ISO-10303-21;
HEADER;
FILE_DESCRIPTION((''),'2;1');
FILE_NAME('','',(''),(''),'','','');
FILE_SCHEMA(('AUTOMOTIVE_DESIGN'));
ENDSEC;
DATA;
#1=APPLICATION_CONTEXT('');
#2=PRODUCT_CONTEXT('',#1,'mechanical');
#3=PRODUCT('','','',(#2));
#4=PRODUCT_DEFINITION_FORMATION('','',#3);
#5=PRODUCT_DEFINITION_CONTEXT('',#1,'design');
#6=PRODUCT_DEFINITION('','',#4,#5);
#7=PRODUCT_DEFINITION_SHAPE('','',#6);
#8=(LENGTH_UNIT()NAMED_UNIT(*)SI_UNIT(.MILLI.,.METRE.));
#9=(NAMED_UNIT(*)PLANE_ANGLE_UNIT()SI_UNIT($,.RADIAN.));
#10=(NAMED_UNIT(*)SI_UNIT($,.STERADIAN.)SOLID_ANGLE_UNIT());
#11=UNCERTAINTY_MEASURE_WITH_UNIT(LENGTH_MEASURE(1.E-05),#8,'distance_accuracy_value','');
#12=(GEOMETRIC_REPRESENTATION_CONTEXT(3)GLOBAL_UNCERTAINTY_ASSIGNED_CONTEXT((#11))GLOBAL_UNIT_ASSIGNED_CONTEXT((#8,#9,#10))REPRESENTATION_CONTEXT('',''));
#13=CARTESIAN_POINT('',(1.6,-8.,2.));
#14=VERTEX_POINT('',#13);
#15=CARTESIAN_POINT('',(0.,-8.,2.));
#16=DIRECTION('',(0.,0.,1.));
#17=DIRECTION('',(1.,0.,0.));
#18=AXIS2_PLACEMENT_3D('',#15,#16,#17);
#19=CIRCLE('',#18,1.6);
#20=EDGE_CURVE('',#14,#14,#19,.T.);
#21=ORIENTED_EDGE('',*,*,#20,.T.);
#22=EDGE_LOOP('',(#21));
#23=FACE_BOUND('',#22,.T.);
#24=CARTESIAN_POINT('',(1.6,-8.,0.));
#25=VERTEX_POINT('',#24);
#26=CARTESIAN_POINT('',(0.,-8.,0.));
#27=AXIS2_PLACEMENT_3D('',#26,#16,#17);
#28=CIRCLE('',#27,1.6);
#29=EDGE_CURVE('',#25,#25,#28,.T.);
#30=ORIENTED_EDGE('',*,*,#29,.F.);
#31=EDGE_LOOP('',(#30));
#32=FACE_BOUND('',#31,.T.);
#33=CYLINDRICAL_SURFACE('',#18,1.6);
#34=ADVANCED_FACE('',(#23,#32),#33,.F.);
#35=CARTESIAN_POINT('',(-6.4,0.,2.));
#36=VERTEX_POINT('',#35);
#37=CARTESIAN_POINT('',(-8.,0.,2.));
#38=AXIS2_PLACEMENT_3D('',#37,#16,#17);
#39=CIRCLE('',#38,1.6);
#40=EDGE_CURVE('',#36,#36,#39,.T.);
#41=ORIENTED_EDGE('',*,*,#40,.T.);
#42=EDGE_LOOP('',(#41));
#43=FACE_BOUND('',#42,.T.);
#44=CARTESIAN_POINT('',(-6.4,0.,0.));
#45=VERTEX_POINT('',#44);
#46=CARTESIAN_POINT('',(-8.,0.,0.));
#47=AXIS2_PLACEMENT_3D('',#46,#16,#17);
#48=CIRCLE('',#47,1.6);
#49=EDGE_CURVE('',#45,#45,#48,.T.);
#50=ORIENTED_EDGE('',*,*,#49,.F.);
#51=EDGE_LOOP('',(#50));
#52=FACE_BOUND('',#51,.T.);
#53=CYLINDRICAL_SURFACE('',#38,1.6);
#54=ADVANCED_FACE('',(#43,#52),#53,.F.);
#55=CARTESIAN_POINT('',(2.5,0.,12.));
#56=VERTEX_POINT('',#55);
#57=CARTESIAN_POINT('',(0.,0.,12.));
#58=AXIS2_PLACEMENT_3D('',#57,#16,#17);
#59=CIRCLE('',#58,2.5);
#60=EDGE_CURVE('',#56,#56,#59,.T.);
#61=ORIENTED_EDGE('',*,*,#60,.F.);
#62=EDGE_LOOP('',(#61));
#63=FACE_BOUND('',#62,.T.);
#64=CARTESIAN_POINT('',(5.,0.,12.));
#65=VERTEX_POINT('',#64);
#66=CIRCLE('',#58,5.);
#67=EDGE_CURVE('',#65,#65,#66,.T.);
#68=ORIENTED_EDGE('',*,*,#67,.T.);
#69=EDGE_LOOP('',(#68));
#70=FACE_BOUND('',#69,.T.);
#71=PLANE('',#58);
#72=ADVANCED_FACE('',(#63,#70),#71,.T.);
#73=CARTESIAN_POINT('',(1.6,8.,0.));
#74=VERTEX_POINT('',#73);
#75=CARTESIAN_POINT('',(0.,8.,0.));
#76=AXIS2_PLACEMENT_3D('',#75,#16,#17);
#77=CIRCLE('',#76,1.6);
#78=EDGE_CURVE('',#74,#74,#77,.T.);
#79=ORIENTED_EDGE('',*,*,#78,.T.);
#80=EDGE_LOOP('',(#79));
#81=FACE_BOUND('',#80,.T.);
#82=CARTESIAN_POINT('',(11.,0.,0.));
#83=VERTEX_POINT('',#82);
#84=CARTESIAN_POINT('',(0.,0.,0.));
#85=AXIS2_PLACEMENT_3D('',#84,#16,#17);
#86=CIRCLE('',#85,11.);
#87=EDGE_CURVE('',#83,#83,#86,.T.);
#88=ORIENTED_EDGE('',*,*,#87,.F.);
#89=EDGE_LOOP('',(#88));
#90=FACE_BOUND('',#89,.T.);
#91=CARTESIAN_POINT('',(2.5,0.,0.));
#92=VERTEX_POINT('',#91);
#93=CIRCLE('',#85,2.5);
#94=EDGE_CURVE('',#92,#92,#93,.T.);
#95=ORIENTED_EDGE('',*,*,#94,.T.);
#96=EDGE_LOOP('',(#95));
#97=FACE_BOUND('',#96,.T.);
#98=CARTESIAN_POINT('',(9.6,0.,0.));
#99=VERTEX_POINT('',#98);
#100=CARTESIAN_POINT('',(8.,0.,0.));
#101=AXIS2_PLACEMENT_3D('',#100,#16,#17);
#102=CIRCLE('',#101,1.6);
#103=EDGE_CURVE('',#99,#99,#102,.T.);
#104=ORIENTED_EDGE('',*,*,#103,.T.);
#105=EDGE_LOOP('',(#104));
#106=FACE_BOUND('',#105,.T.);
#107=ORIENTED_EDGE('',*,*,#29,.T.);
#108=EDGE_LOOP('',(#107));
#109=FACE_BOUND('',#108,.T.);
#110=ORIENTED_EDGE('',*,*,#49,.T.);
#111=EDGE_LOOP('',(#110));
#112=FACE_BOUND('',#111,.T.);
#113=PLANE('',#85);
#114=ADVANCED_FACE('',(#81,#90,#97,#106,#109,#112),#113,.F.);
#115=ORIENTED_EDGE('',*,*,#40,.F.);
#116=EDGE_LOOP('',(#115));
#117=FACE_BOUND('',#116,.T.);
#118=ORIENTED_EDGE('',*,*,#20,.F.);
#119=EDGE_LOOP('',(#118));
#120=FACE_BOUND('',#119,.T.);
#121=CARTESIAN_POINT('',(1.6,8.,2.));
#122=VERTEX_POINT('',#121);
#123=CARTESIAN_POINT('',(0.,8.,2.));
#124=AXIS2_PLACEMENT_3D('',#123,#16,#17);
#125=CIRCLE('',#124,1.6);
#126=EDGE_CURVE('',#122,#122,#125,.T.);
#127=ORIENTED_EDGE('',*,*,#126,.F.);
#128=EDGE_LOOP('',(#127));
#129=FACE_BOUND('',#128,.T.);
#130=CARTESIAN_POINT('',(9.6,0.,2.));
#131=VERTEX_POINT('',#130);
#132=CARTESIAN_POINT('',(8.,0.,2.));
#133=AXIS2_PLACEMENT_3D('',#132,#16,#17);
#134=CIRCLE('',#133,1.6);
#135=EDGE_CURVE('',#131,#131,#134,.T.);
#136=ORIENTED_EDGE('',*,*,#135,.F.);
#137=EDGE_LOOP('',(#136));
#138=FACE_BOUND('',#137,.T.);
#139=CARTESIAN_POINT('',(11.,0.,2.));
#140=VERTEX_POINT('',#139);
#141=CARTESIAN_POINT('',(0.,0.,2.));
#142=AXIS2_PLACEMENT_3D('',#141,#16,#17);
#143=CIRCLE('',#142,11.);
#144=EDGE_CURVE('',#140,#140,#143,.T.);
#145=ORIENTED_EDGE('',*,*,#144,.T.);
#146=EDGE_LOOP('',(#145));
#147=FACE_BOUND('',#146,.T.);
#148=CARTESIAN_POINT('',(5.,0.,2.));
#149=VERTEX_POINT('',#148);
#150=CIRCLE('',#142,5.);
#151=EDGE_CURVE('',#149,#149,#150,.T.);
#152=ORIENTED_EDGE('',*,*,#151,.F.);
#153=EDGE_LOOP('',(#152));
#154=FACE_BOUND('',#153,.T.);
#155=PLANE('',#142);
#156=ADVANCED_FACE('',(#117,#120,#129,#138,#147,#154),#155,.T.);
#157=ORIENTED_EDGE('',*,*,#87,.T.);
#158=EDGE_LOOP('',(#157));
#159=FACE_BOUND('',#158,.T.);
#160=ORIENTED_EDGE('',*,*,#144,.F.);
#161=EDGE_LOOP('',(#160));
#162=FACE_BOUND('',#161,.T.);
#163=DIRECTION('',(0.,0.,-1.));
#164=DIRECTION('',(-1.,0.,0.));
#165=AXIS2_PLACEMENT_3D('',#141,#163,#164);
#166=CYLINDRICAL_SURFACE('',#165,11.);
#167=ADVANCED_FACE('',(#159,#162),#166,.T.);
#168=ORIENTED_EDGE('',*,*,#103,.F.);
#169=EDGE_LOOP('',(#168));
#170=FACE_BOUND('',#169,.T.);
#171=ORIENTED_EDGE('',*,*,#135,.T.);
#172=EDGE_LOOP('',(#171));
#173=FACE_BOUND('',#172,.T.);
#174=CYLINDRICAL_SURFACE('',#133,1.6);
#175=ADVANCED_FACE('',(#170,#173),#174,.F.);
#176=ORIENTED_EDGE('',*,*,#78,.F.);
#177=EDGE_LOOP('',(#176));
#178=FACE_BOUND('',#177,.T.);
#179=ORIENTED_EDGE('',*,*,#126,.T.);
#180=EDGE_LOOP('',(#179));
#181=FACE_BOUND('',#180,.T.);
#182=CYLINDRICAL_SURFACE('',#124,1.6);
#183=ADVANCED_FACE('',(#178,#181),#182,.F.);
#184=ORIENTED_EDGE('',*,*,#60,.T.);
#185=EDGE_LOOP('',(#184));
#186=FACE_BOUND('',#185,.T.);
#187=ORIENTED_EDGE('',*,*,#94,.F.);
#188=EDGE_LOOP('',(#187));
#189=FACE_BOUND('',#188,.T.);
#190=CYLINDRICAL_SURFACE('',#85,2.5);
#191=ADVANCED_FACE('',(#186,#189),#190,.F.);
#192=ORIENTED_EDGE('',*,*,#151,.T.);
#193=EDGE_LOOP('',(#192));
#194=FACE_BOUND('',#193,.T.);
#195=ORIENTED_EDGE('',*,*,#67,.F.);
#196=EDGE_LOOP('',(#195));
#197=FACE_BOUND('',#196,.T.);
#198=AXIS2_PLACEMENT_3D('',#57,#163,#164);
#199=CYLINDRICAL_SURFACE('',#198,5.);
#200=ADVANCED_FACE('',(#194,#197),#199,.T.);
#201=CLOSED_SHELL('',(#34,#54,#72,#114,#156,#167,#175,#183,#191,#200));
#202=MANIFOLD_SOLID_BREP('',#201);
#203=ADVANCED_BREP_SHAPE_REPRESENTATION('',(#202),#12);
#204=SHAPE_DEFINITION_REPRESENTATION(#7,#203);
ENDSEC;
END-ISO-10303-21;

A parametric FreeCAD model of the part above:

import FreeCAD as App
import Part
import Sketcher

doc = App.newDocument("Part")
params = doc.addObject("Spreadsheet::Sheet", "Params")
for row, (alias, value) in enumerate([
    ("sketch1_diameter", "22 mm"),
    ("pad1_length", "2 mm"),
    ("sketch2_diameter", "10 mm"),
    ("pad2_length", "10 mm"),
    ("sketch3_diameter", "5 mm"),
    ("sketch4_diameter", "3.2 mm"),
    ("hole_diameter", "3.2 mm"),
    ("hole_depth", "10 mm"),
], start=1):
    params.set(f"A{row}", alias)
    params.set(f"B{row}", "=" + value)
    params.setAlias(f"B{row}", alias)

body = doc.addObject("PartDesign::Body", "Body")

sketch1 = body.newObject("Sketcher::SketchObject", "Sketch")
sketch1.AttachmentSupport = (doc.getObject("XY_Plane"), [""])
sketch1.MapMode = "FlatFace"
sketch1.addGeometry(Part.Circle(App.Vector(0, 0, 0), App.Vector(0, 0, 1), 11), False)
sketch1.addConstraint([
    Sketcher.Constraint("Coincident", 0, 3, -1, 1),
    Sketcher.Constraint("Diameter", 0, 22.0),
])
sketch1.setExpression("Constraints[1]", "Params.sketch1_diameter")
pad1 = body.newObject("PartDesign::Pad", "Pad")
pad1.Profile = sketch1
pad1.setExpression("Length", "Params.pad1_length")

sketch2 = body.newObject("Sketcher::SketchObject", "Sketch001")
sketch2.AttachmentSupport = (doc.getObject("XY_Plane"), [""])
sketch2.MapMode = "FlatFace"
sketch2.AttachmentOffset = App.Placement(App.Vector(0, 0, 2), App.Rotation())
sketch2.addGeometry(Part.Circle(App.Vector(0, 0, 0), App.Vector(0, 0, 1), 5), False)
sketch2.addConstraint([
    Sketcher.Constraint("Coincident", 0, 3, -1, 1),
    Sketcher.Constraint("Diameter", 0, 10.0),
])
sketch2.setExpression("Constraints[1]", "Params.sketch2_diameter")
pad2 = body.newObject("PartDesign::Pad", "Pad001")
pad2.Profile = sketch2
pad2.setExpression("Length", "Params.pad2_length")

sketch3 = body.newObject("Sketcher::SketchObject", "Sketch002")
sketch3.AttachmentSupport = (doc.getObject("XY_Plane"), [""])
sketch3.MapMode = "FlatFace"
sketch3.AttachmentOffset = App.Placement(App.Vector(0, 0, 12), App.Rotation())
sketch3.addGeometry(Part.Circle(App.Vector(0, 0, 0), App.Vector(0, 0, 1), 2.5), False)
sketch3.addConstraint([
    Sketcher.Constraint("Coincident", 0, 3, -1, 1),
    Sketcher.Constraint("Diameter", 0, 5.0),
])
sketch3.setExpression("Constraints[1]", "Params.sketch3_diameter")
pocket1 = body.newObject("PartDesign::Pocket", "Pocket")
pocket1.Profile = sketch3
pocket1.Type = "ThroughAll"

sketch4 = body.newObject("Sketcher::SketchObject", "Sketch003")
sketch4.AttachmentSupport = (doc.getObject("XY_Plane"), [""])
sketch4.MapMode = "FlatFace"
sketch4.AttachmentOffset = App.Placement(App.Vector(0, 0, 2), App.Rotation())
sketch4.addGeometry([
    Part.Circle(App.Vector(8, 0, 0), App.Vector(0, 0, 1), 1.6),
    Part.Circle(App.Vector(-8, 0, 0), App.Vector(0, 0, 1), 1.6),
    Part.Circle(App.Vector(0, -8, 0), App.Vector(0, 0, 1), 1.6),
    Part.Circle(App.Vector(0, 8, 0), App.Vector(0, 0, 1), 1.6),
], False)
sketch4.addConstraint([
    Sketcher.Constraint("Equal", 0, 1),
    Sketcher.Constraint("Equal", 1, 2),
    Sketcher.Constraint("Equal", 2, 3),
    Sketcher.Constraint("Symmetric", 0, 3, 1, 3, -1, 1),
    Sketcher.Constraint("Symmetric", 2, 3, 3, 3, -1, 1),
    Sketcher.Constraint("PointOnObject", 0, 3, -1),
    Sketcher.Constraint("PointOnObject", 2, 3, -2),
    Sketcher.Constraint("Diameter", 0, 3.2),
    Sketcher.Constraint("DistanceX", -1, 1, 0, 3, 8.0),
    Sketcher.Constraint("DistanceY", 2, 3, -1, 1, 8.0),
])
sketch4.setExpression("Constraints[7]", "Params.sketch4_diameter")
doc.recompute()
hole = body.newObject("PartDesign::Hole", "Hole")
hole.Profile = sketch4
hole.ThreadType = "None"
hole.setExpression("Diameter", "Params.hole_diameter")
hole.DepthType = "Dimension"
hole.setExpression("Depth", "Params.hole_depth")
hole.DrillPoint = "Angled"
hole.DrillPointAngle = 118

doc.recompute()
